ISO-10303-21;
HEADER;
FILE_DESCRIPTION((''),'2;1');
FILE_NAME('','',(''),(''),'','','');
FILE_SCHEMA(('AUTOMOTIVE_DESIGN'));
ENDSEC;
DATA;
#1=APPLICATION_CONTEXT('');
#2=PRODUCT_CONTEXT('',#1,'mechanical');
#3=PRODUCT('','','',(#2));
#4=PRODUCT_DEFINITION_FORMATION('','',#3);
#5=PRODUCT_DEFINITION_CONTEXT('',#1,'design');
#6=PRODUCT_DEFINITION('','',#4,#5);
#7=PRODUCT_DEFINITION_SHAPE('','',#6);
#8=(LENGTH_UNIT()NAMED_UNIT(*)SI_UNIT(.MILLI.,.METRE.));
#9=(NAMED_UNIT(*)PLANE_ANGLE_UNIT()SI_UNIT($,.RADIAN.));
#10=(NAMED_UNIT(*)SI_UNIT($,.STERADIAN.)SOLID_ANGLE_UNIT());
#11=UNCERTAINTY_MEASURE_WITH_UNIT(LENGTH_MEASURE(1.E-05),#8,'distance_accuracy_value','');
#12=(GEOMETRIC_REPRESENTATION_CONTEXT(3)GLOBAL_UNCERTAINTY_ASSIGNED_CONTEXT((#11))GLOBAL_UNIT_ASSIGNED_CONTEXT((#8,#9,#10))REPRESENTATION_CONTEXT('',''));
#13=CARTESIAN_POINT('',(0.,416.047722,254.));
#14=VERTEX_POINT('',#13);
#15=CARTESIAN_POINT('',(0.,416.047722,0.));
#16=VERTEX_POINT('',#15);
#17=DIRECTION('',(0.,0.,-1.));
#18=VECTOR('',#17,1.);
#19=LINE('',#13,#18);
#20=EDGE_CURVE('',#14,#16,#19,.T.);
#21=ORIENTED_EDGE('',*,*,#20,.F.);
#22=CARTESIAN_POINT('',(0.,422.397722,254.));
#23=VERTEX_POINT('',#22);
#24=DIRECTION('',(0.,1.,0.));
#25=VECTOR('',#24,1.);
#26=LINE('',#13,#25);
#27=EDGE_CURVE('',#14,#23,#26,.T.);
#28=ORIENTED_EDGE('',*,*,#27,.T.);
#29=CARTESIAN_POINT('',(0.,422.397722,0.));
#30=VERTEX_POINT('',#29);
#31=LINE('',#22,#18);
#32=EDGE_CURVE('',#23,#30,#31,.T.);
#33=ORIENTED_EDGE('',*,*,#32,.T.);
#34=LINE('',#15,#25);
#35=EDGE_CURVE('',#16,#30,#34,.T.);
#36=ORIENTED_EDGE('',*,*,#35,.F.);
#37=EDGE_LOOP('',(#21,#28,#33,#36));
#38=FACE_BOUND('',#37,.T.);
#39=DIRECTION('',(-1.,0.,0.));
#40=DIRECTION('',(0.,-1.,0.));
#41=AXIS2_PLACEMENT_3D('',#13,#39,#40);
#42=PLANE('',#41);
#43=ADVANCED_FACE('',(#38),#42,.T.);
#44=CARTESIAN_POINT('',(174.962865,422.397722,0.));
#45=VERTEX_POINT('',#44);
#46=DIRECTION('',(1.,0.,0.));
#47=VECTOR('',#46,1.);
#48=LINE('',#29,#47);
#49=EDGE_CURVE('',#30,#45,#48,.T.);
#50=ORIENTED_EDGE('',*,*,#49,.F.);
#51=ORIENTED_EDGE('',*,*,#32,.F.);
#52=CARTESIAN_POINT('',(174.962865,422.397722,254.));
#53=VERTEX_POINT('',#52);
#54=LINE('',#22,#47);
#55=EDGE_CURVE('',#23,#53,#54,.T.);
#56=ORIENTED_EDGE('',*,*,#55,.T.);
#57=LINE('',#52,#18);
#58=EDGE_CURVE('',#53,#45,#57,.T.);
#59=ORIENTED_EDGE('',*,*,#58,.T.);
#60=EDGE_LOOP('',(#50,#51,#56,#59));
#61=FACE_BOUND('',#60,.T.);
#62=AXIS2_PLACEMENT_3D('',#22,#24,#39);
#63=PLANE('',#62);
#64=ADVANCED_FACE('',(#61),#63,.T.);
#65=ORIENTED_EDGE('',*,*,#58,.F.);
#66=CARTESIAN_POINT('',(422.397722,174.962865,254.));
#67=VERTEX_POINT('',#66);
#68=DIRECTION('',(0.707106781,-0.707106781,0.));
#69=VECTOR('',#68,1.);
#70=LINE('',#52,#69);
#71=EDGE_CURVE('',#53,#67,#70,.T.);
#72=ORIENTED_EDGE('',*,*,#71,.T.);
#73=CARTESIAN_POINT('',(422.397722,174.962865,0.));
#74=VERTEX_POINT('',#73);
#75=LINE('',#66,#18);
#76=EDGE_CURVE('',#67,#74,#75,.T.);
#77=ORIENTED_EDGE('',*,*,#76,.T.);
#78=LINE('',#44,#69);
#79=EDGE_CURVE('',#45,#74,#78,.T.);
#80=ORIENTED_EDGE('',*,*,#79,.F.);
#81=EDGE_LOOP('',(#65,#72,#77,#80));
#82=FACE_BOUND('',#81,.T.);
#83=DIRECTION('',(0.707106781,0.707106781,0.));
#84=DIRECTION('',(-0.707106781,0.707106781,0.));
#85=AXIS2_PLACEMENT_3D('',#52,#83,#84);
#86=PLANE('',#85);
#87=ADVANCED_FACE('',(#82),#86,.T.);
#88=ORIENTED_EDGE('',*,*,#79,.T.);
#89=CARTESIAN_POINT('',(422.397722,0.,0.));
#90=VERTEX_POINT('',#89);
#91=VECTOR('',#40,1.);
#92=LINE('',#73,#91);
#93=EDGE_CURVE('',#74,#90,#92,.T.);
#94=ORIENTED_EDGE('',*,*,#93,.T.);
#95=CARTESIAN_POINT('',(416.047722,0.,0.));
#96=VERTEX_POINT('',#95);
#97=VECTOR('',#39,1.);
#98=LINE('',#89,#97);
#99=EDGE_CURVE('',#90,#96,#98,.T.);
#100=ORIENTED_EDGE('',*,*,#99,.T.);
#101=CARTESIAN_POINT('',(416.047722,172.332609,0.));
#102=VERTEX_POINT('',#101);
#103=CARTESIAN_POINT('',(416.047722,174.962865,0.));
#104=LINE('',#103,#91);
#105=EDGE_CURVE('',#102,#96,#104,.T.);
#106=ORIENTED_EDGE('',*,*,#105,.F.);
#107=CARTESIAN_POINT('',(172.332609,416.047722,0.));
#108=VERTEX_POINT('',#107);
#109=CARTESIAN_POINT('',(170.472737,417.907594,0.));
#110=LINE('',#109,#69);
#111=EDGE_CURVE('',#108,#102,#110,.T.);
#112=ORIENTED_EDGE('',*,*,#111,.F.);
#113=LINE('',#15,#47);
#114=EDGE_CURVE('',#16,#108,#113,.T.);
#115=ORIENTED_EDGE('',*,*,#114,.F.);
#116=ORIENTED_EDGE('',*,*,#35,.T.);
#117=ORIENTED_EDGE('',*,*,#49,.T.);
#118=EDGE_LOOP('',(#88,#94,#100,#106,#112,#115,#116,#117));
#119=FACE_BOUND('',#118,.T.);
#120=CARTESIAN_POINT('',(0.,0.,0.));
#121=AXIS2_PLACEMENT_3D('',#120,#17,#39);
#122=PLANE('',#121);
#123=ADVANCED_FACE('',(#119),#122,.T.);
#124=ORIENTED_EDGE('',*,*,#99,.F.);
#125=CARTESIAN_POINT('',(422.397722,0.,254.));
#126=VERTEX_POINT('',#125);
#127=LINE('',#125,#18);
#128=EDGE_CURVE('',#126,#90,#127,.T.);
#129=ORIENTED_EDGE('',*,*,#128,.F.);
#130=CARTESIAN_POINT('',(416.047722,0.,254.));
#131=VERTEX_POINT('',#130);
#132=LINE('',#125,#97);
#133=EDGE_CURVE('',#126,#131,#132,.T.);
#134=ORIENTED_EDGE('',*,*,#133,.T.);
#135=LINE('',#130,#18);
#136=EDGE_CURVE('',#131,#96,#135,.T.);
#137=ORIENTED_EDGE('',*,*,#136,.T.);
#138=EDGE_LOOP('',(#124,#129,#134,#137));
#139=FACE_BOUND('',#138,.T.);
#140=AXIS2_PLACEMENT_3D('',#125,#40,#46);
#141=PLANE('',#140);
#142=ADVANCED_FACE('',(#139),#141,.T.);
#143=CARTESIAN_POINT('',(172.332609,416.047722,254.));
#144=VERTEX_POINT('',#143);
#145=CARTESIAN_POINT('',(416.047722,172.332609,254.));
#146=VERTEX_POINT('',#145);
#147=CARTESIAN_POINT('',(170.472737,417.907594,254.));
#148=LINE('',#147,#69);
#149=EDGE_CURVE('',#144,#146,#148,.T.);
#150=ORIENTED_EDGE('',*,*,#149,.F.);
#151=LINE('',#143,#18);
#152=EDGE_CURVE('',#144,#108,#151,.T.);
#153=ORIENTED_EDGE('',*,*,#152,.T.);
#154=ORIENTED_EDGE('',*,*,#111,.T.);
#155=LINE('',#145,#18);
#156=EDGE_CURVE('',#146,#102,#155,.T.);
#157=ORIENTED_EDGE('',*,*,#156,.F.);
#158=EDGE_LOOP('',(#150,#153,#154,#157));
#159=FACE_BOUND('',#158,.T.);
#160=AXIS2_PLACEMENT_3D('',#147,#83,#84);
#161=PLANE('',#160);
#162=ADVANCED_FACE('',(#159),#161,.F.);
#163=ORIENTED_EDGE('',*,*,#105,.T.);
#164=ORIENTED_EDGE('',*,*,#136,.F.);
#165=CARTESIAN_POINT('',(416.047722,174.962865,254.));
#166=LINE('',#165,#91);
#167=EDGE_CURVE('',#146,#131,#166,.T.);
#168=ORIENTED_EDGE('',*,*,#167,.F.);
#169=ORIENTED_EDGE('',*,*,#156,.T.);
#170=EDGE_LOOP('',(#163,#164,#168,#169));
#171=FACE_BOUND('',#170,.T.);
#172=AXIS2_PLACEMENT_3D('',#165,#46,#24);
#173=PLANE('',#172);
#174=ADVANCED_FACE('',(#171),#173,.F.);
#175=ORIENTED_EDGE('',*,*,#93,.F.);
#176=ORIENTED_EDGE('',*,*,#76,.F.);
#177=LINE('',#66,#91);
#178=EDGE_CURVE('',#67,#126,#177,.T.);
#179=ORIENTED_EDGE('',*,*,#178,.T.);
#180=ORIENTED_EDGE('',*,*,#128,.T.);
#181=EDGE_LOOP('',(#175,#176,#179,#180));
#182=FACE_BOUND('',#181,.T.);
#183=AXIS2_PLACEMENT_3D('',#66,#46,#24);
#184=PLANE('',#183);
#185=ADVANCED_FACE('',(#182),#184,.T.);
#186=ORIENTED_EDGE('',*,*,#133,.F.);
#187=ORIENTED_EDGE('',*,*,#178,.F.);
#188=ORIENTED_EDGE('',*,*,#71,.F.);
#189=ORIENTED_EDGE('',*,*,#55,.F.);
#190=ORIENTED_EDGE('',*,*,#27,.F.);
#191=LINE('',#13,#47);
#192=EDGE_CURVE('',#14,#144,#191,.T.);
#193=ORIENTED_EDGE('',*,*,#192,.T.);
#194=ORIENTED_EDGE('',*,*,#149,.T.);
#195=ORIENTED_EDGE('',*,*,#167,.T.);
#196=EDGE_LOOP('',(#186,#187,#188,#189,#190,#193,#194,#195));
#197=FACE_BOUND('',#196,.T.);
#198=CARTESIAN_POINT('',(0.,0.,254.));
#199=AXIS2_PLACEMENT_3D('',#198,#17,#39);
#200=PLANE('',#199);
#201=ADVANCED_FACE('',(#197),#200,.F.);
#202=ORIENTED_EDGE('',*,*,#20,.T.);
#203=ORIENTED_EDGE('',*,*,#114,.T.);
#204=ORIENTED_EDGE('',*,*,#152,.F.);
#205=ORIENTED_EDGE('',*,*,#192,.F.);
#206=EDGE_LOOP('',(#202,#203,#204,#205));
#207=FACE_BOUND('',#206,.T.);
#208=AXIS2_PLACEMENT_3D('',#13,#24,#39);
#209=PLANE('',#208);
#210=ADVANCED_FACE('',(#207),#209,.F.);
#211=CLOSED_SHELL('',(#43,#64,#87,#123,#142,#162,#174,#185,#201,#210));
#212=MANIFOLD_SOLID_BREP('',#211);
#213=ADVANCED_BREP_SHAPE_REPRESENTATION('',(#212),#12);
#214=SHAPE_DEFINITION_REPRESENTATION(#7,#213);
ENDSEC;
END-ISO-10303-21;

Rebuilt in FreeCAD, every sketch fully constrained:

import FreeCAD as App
import Part
import Sketcher
Q = App.Units.Quantity


def add_polygon(sketch, points):
    """Adds a closed chain of lines whose ends are joined by coincident constraints."""
    first, n = sketch.GeometryCount, len(points)
    for a, b in zip(points, points[1:] + points[:1]):
        sketch.addGeometry(Part.LineSegment(App.Vector(*a, 0), App.Vector(*b, 0)), False)
    for i in range(n):
        sketch.addConstraint(Sketcher.Constraint("Coincident", first + i, 2, first + (i + 1) % n, 1))

doc = App.newDocument("Part")
body = doc.addObject("PartDesign::Body", "Body")

sketch1 = body.newObject("Sketcher::SketchObject", "Sketch")
sketch1.AttachmentSupport = (doc.getObject("XY_Plane"), [""])
sketch1.MapMode = "FlatFace"
add_polygon(sketch1, [(174.962865, 422.397722), (0, 422.397722), (0, 416.047722), (172.332609, 416.047722), (416.047722, 172.332609), (416.047722, 0), (422.397722, 0), (422.397722, 174.962865)])
sketch1.addConstraint([
    Sketcher.Constraint("Horizontal", 0),
    Sketcher.Constraint("Vertical", 1),
    Sketcher.Constraint("Horizontal", 2),
    Sketcher.Constraint("Vertical", 4),
    Sketcher.Constraint("Horizontal", 5),
    Sketcher.Constraint("Vertical", 6),
    Sketcher.Constraint("PointOnObject", 0, 2, -2),
    Sketcher.Constraint("PointOnObject", 4, 2, -1),
    Sketcher.Constraint("Parallel", 3, 7),
    Sketcher.Constraint("Equal", 5, 1),
    Sketcher.Constraint("Equal", 2, 4),
    Sketcher.Constraint("Equal", 0, 6),
    Sketcher.Constraint("DistanceX", 5, 1, 5, 2, Q("0.25 in")),
    Sketcher.Constraint("DistanceX", 2, 1, 2, 2, Q("172.332609 mm")),
    Sketcher.Constraint("Distance", 3, Q("344.665218 mm")),
    Sketcher.Constraint("Distance", 7, Q("349.925731 mm")),
])
pad1 = body.newObject("PartDesign::Pad", "Pad")
pad1.Profile = sketch1
pad1.Length = Q("10 in")

doc.recompute()
